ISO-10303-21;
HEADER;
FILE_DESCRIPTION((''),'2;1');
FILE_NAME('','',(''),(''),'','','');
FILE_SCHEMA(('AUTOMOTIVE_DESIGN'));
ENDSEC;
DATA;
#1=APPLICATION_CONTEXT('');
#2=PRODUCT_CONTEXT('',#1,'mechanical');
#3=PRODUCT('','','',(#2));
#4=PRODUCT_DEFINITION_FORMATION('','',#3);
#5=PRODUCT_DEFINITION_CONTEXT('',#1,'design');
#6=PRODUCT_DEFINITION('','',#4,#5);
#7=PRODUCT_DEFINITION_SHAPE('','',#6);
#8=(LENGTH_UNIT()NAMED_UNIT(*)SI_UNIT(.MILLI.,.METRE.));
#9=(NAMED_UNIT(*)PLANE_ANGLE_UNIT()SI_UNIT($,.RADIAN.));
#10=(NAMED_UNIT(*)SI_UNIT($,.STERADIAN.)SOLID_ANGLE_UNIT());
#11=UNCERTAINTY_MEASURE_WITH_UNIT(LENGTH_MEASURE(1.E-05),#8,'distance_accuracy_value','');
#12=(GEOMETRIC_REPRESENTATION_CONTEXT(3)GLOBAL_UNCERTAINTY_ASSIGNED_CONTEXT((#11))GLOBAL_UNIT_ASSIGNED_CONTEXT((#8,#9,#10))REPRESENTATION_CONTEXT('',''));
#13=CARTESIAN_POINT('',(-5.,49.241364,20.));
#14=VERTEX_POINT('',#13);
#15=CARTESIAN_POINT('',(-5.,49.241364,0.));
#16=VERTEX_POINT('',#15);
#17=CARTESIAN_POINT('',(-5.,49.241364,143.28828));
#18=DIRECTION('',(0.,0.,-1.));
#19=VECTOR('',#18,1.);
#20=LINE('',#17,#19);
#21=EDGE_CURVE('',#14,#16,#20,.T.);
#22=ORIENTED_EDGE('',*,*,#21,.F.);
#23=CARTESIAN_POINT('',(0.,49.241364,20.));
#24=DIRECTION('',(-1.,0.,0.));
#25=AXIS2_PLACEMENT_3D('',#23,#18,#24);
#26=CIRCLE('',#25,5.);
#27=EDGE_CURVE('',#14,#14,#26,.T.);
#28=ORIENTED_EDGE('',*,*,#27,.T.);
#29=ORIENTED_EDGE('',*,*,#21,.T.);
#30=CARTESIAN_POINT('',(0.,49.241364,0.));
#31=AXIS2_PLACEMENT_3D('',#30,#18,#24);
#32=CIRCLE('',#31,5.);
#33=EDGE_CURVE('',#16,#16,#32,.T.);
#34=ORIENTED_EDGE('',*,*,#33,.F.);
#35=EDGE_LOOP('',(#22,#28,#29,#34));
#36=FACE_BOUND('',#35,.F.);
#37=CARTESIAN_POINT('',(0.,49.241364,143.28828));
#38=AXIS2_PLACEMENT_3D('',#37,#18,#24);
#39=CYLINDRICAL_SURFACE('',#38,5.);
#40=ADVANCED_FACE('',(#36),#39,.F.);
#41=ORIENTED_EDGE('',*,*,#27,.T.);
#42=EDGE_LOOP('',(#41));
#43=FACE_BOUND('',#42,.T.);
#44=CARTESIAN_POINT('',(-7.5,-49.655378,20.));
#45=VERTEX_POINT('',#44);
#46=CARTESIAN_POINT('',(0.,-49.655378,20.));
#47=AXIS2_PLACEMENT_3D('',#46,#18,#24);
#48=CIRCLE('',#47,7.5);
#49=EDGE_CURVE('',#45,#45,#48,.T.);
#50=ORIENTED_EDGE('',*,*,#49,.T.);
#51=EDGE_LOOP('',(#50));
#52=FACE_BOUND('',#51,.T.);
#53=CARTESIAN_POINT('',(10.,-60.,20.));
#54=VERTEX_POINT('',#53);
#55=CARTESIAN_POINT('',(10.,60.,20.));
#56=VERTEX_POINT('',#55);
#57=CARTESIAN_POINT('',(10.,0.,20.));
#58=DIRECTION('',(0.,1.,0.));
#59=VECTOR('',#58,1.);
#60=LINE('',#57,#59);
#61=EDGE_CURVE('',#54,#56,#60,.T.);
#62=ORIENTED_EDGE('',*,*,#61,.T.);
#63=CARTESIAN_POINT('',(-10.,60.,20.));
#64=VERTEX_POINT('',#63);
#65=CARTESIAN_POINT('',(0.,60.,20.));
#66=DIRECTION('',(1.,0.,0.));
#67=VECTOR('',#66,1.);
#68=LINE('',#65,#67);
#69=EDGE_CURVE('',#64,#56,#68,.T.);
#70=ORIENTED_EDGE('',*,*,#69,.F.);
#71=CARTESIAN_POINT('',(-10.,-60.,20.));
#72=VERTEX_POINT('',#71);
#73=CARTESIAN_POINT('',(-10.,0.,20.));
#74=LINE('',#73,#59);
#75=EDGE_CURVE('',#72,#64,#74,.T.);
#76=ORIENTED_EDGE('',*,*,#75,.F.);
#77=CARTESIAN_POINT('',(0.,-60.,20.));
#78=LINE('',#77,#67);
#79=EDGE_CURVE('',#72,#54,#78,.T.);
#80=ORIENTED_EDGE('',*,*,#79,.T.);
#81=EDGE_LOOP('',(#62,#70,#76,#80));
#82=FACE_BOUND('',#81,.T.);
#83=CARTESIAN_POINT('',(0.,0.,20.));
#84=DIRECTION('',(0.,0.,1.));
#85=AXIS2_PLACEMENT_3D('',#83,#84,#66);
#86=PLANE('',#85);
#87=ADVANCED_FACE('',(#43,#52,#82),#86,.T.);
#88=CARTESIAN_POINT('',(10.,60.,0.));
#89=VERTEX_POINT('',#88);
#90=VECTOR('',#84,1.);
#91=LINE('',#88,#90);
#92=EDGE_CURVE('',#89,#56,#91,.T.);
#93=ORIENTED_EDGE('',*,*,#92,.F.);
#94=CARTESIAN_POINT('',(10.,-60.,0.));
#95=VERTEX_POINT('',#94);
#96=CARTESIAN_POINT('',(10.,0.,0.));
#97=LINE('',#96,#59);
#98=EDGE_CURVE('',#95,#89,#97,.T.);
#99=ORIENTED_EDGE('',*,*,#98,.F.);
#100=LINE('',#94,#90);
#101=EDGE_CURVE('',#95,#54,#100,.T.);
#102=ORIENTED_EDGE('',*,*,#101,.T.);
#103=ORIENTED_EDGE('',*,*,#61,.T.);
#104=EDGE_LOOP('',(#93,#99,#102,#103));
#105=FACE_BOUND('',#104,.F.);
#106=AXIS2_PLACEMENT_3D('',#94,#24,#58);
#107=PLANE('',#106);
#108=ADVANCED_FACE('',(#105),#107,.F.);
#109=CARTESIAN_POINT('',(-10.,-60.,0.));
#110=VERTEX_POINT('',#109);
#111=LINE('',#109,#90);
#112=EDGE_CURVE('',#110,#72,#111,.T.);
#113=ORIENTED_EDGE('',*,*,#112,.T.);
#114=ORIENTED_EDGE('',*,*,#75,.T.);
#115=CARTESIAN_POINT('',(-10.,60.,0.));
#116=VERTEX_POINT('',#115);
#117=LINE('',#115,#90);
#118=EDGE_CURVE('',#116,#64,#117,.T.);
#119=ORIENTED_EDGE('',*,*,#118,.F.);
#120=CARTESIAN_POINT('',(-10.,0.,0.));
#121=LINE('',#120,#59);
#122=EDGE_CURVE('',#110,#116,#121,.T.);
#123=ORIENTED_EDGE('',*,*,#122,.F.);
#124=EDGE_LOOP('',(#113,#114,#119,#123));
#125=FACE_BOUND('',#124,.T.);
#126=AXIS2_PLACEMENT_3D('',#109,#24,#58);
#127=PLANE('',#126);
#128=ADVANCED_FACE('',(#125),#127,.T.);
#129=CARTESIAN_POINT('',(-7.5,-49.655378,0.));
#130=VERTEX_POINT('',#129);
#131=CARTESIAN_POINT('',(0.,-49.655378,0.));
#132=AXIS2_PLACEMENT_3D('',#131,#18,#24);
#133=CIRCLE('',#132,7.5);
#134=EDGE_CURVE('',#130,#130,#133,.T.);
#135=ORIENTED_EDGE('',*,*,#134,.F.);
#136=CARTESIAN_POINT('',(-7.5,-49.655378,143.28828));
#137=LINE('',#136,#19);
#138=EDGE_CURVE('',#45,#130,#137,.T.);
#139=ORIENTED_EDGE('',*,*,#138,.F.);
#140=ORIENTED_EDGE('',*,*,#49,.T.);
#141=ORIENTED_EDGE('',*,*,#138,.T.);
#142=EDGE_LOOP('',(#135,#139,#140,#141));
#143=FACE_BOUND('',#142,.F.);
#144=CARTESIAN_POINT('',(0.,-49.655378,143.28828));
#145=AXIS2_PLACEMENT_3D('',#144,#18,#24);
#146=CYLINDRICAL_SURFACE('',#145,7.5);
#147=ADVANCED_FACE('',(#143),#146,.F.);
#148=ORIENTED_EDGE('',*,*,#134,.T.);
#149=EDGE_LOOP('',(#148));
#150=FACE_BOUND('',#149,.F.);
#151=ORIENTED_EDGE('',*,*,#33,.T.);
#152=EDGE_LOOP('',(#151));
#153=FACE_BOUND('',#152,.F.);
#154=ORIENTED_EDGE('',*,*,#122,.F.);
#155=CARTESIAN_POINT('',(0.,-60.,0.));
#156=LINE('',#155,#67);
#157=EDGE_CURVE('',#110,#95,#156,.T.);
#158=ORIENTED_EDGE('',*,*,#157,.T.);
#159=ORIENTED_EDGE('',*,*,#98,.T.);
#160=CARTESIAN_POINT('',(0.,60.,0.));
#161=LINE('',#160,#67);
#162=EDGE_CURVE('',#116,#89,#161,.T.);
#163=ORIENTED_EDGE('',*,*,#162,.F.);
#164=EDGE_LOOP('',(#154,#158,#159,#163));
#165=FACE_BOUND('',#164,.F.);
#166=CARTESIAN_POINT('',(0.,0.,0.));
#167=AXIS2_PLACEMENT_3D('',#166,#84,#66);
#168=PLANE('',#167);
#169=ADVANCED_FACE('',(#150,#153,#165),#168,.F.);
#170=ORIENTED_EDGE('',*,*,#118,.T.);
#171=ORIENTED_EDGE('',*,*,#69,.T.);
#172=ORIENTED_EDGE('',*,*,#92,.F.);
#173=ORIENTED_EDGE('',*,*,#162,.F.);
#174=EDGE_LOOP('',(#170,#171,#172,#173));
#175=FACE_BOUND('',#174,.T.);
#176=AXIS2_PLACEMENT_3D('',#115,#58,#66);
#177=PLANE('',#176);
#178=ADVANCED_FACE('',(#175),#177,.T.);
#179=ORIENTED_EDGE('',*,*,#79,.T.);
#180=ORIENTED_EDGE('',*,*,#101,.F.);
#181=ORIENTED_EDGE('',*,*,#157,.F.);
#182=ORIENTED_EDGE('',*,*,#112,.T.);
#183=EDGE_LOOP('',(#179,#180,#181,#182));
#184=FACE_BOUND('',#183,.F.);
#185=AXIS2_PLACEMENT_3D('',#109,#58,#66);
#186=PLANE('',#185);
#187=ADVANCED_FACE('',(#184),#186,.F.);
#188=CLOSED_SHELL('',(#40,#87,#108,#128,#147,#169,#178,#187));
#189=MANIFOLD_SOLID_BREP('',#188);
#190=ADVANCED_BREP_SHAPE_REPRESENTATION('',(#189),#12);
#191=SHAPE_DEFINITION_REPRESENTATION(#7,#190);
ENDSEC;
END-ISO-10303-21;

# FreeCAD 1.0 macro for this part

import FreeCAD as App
import Part
import Sketcher
Q = App.Units.Quantity

doc = App.newDocument("Part")
params = doc.addObject("Spreadsheet::Sheet", "Params")
for row, (alias, value) in enumerate([
    ("sketch1_width", "20 mm"),
    ("sketch1_height", "120 mm"),
    ("pad1_length", "20 mm"),
    ("sketch2_diameter", "15 mm"),
    ("hole_diameter", "15 mm"),
    ("sketch3_diameter", "10 mm"),
    ("hole2_diameter", "10 mm"),
], start=1):
    params.set(f"A{row}", alias)
    params.set(f"B{row}", "=" + value)
    params.setAlias(f"B{row}", alias)

body = doc.addObject("PartDesign::Body", "Body")

sketch1 = doc.addObject("Sketcher::SketchObject", "Sketch")
body.addObject(sketch1)
sketch1.AttachmentSupport = (doc.XY_Plane, [""])
sketch1.MapMode = "FlatFace"
sketch1.addGeometry(Part.LineSegment(App.Vector(-10, 60, 0), App.Vector(-10, -60, 0)), False)
sketch1.addGeometry(Part.LineSegment(App.Vector(-10, -60, 0), App.Vector(10, -60, 0)), False)
sketch1.addGeometry(Part.LineSegment(App.Vector(10, -60, 0), App.Vector(10, 60, 0)), False)
sketch1.addGeometry(Part.LineSegment(App.Vector(10, 60, 0), App.Vector(-10, 60, 0)), False)
sketch1.addConstraint(Sketcher.Constraint("Coincident", 0, 2, 1, 1))
sketch1.addConstraint(Sketcher.Constraint("Coincident", 1, 2, 2, 1))
sketch1.addConstraint(Sketcher.Constraint("Coincident", 2, 2, 3, 1))
sketch1.addConstraint(Sketcher.Constraint("Coincident", 3, 2, 0, 1))
sketch1.addConstraint(Sketcher.Constraint("Vertical", 0))
sketch1.addConstraint(Sketcher.Constraint("Horizontal", 1))
sketch1.addConstraint(Sketcher.Constraint("Vertical", 2))
sketch1.addConstraint(Sketcher.Constraint("Horizontal", 3))
sketch1.addConstraint(Sketcher.Constraint("Symmetric", 0, 2, 2, 2, -1, 1))
sketch1.addConstraint(Sketcher.Constraint("DistanceX", 1, 1, 1, 2, Q("20 mm")))
sketch1.addConstraint(Sketcher.Constraint("DistanceY", 0, 2, 0, 1, Q("120 mm")))
sketch1.setExpression("Constraints[9]", "Params.sketch1_width")
sketch1.setExpression("Constraints[10]", "Params.sketch1_height")
pad1 = doc.addObject("PartDesign::Pad", "Pad")
body.addObject(pad1)
pad1.Profile = sketch1
pad1.setExpression("Length", "Params.pad1_length")

sketch2 = doc.addObject("Sketcher::SketchObject", "Sketch001")
body.addObject(sketch2)
sketch2.AttachmentSupport = (doc.XY_Plane, [""])
sketch2.MapMode = "FlatFace"
sketch2.AttachmentOffset = App.Placement(App.Vector(0, 0, 20), App.Rotation())
sketch2.addGeometry(Part.Circle(App.Vector(0, -49.655378, 0), App.Vector(0, 0, 1), 7.5), False)
sketch2.addConstraint(Sketcher.Constraint("PointOnObject", 0, 3, -2))
sketch2.addConstraint(Sketcher.Constraint("Diameter", 0, Q("15 mm")))
sketch2.addConstraint(Sketcher.Constraint("DistanceY", 0, 3, -1, 1, Q("49.655378 mm")))
sketch2.setExpression("Constraints[1]", "Params.sketch2_diameter")
doc.recompute()
hole = doc.addObject("PartDesign::Hole", "Hole")
body.addObject(hole)
hole.Profile = sketch2
hole.ThreadType = "None"
hole.setExpression("Diameter", "Params.hole_diameter")
hole.DepthType = "ThroughAll"

sketch3 = doc.addObject("Sketcher::SketchObject", "Sketch002")
body.addObject(sketch3)
sketch3.AttachmentSupport = (doc.XY_Plane, [""])
sketch3.MapMode = "FlatFace"
sketch3.AttachmentOffset = App.Placement(App.Vector(0, 0, 20), App.Rotation())
sketch3.addGeometry(Part.Circle(App.Vector(0, 49.241364, 0), App.Vector(0, 0, 1), 5), False)
sketch3.addConstraint(Sketcher.Constraint("PointOnObject", 0, 3, -2))
sketch3.addConstraint(Sketcher.Constraint("Diameter", 0, Q("10 mm")))
sketch3.addConstraint(Sketcher.Constraint("DistanceY", -1, 1, 0, 3, Q("49.241364 mm")))
sketch3.setExpression("Constraints[1]", "Params.sketch3_diameter")
doc.recompute()
hole2 = doc.addObject("PartDesign::Hole", "Hole001")
body.addObject(hole2)
hole2.Profile = sketch3
hole2.ThreadType = "None"
hole2.setExpression("Diameter", "Params.hole2_diameter")
hole2.DepthType = "ThroughAll"

doc.recompute()
